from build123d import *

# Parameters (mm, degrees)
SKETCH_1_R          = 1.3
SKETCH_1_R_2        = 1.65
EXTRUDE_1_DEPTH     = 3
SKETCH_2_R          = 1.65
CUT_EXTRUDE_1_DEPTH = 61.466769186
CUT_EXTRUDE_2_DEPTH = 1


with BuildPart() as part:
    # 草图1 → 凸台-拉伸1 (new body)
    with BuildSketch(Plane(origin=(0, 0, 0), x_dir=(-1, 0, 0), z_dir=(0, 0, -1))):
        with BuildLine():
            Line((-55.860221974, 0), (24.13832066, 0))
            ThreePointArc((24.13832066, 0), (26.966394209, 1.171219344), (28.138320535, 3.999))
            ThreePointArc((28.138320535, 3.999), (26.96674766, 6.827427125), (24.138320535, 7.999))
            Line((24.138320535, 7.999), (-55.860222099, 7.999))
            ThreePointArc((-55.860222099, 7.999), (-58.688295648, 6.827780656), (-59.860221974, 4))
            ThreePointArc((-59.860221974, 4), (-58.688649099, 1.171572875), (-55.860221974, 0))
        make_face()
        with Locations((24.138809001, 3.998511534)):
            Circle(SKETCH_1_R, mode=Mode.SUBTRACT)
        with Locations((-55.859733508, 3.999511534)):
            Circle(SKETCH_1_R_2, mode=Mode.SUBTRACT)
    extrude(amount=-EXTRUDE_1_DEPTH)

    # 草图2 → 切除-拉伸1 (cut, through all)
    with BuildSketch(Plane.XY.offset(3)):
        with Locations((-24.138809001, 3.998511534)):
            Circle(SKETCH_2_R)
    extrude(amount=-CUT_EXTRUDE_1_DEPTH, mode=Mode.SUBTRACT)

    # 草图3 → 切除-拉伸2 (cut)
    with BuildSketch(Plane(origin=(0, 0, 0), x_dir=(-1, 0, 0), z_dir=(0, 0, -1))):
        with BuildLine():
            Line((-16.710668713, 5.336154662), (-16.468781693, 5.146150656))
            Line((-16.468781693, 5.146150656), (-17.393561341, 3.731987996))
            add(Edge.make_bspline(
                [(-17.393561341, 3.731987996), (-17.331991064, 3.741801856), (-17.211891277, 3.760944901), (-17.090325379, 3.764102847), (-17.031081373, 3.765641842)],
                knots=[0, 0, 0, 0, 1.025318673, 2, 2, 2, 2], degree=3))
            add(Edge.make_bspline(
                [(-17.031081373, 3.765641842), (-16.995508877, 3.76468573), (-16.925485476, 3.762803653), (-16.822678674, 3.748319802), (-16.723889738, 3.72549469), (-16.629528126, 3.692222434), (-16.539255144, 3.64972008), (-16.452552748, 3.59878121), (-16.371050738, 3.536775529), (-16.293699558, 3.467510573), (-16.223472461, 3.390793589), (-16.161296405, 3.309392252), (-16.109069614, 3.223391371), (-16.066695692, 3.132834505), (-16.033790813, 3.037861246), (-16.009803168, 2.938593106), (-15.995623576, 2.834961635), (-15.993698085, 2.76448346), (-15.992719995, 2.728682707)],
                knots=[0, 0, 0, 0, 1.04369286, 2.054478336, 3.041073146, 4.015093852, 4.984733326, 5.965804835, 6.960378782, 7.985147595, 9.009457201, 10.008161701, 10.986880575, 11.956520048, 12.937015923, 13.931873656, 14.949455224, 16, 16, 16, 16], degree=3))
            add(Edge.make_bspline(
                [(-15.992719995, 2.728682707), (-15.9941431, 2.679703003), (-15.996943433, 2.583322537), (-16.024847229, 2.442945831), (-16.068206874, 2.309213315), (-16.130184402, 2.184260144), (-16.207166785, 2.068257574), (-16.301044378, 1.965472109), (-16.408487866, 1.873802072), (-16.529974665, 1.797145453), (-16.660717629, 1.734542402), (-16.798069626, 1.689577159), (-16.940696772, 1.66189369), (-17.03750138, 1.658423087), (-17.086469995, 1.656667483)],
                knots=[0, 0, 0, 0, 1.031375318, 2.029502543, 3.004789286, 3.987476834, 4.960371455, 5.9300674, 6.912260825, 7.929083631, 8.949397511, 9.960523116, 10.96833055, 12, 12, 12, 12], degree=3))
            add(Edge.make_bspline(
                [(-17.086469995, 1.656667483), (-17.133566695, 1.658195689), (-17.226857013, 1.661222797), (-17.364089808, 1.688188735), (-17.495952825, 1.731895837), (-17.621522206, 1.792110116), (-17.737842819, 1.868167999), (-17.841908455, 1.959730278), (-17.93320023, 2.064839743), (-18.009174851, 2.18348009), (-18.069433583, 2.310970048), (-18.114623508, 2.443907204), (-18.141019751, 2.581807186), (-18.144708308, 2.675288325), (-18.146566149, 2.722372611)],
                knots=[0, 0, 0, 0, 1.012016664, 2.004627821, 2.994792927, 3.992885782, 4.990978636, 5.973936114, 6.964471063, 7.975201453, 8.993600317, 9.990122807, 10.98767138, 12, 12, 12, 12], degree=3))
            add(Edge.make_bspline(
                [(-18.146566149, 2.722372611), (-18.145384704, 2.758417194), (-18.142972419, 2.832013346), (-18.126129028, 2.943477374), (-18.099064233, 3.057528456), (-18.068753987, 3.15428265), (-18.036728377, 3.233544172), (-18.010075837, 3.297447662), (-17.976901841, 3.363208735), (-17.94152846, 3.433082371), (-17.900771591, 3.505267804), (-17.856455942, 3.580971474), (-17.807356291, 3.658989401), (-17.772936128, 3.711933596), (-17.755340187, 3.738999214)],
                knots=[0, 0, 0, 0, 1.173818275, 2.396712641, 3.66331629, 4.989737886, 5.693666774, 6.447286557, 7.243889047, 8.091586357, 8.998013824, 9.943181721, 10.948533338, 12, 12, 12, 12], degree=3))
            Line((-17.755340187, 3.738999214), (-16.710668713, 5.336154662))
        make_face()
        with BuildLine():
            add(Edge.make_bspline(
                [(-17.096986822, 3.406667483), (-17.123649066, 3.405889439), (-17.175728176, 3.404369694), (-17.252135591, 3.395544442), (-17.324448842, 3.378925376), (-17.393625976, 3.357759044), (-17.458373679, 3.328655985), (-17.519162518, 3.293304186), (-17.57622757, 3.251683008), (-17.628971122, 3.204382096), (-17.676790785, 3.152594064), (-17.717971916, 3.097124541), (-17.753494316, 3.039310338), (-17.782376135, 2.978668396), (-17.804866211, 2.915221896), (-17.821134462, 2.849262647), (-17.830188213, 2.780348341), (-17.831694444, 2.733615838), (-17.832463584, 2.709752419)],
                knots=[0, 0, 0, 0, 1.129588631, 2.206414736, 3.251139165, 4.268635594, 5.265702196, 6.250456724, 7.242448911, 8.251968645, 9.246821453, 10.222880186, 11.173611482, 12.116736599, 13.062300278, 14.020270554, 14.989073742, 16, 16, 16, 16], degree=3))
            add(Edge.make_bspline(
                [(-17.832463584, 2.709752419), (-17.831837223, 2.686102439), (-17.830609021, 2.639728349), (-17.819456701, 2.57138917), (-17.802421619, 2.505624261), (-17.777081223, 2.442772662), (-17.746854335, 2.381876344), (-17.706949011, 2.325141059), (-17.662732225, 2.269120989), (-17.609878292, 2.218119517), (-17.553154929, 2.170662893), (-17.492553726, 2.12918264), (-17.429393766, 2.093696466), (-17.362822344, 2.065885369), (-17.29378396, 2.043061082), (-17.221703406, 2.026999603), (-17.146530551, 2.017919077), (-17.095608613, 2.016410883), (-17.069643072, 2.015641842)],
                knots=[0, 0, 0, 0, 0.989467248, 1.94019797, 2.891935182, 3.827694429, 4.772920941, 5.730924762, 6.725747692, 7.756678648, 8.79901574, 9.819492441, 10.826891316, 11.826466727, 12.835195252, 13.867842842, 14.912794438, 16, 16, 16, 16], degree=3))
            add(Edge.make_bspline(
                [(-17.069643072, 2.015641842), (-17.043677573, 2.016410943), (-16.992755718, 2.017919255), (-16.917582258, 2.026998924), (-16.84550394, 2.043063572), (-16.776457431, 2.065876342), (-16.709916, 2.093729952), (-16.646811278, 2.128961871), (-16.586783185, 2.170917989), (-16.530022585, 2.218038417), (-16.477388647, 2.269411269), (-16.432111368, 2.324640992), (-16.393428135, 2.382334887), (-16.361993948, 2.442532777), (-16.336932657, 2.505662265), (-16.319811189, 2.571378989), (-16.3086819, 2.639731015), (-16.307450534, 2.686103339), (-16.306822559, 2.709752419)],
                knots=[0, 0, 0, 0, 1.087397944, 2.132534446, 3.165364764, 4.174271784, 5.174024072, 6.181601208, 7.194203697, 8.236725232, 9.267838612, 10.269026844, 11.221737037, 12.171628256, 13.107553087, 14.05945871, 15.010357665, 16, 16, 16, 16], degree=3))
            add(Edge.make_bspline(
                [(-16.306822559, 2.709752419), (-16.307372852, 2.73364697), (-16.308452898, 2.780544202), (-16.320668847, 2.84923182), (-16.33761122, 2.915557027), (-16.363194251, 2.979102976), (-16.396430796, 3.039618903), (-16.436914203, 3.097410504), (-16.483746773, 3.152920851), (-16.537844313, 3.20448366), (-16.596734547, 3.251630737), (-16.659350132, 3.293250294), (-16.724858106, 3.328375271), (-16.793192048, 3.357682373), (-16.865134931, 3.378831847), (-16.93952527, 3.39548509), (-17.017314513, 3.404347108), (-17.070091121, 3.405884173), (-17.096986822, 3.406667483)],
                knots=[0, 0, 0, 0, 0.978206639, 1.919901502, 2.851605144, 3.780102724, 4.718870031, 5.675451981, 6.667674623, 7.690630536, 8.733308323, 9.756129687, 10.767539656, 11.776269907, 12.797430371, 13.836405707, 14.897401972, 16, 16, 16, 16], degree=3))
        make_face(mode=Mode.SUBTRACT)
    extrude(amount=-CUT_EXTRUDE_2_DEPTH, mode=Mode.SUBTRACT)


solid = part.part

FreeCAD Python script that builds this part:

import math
import FreeCAD as App
import Part
import Sketcher
from FreeCAD import Vector

doc = App.newDocument("Part")
params = doc.addObject("Spreadsheet::Sheet", "Params")
for row, (alias, value) in enumerate([
    ("sketch1_radius", "4 mm"),
    ("sketch1_diameter", "2.6 mm"),
    ("sketch1_diameter2", "3.3 mm"),
    ("pad1_length", "3 mm"),
    ("sketch2_diameter", "3.3 mm"),
    ("pocket2_length", "1 mm"),
], start=1):
    params.set(f"A{row}", alias)
    params.set(f"B{row}", "=" + value)
    params.setAlias(f"B{row}", alias)

body = doc.addObject("PartDesign::Body", "Body")

# Sketch on XY plane
sketch1 = doc.addObject("Sketcher::SketchObject", "Sketch")
body.addObject(sketch1)
sketch1.AttachmentSupport = (doc.XY_Plane, [""])
sketch1.MapMode = "FlatFace"
sketch1.addGeometry([
    Part.LineSegment(Vector(55.860222, 0, 0), Vector(-24.138321, 0, 0)),  # 0
    Part.ArcOfCircle(Part.Circle(Vector(-24.138321, 4, 0), Vector(0, 0, 1), 4), math.radians(-179.985676), math.radians(-90)),  # 1
    Part.ArcOfCircle(Part.Circle(Vector(-24.138321, 3.999, 0), Vector(0, 0, 1), 4), math.radians(90), math.radians(180)),  # 2
    Part.LineSegment(Vector(-24.138321, 7.999, 0), Vector(55.860222, 7.999, 0)),  # 3
    Part.ArcOfCircle(Part.Circle(Vector(55.860222, 3.999, 0), Vector(0, 0, 1), 4), math.radians(0.014324), math.radians(90)),  # 4
    Part.ArcOfCircle(Part.Circle(Vector(55.860222, 4, 0), Vector(0, 0, 1), 4), math.radians(-90), math.radians(0)),  # 5
    Part.Circle(Vector(-24.138809, 3.998512, 0), Vector(0, 0, 1), 1.3),  # 6
    Part.Circle(Vector(55.859734, 3.999512, 0), Vector(0, 0, 1), 1.65),  # 7
], False)
sketch1.addConstraint([
    Sketcher.Constraint("Tangent", 0, 2, 1, 2),
    Sketcher.Constraint("Coincident", 1, 1, 2, 2),
    Sketcher.Constraint("Tangent", 2, 1, 3, 1),
    Sketcher.Constraint("Tangent", 3, 2, 4, 2),
    Sketcher.Constraint("Coincident", 4, 1, 5, 2),
    Sketcher.Constraint("Tangent", 5, 1, 0, 1),
    Sketcher.Constraint("Horizontal", 0),
    Sketcher.Constraint("Horizontal", 3),
    Sketcher.Constraint("Equal", 1, 2),
    Sketcher.Constraint("Equal", 2, 4),
    Sketcher.Constraint("Equal", 4, 5),
    Sketcher.Constraint("PointOnObject", 0, 2, -1),
    Sketcher.Constraint("Horizontal", 4, 3, 1, 1),
    Sketcher.Constraint("Horizontal", 5, 3, 4, 1),
    Sketcher.Constraint("Radius", 1, 4.0),
    Sketcher.Constraint("Diameter", 6, 2.6),
    Sketcher.Constraint("Diameter", 7, 3.3),
    Sketcher.Constraint("DistanceY", -1, 1, 2, 3, 3.999),
    Sketcher.Constraint("DistanceY", 6, 3, 7, 3, 0.001),
    Sketcher.Constraint("DistanceX", 0, 2, 0, 1, 79.998543),
    Sketcher.Constraint("DistanceX", 1, 3, -1, 1, 24.138321),
    Sketcher.Constraint("DistanceX", 6, 3, -1, 1, 24.138809),
    Sketcher.Constraint("DistanceY", -1, 1, 6, 3, 3.998512),
    Sketcher.Constraint("DistanceX", 7, 3, 5, 3, 0.000488),
])
sketch1.setExpression("Constraints[14]", "Params.sketch1_radius")
sketch1.setExpression("Constraints[15]", "Params.sketch1_diameter")
sketch1.setExpression("Constraints[16]", "Params.sketch1_diameter2")
pad1 = doc.addObject("PartDesign::Pad", "Pad")
body.addObject(pad1)
pad1.Profile = sketch1
pad1.setExpression("Length", "Params.pad1_length")

# Sketch on XY plane
sketch2 = doc.addObject("Sketcher::SketchObject", "Sketch001")
body.addObject(sketch2)
sketch2.AttachmentSupport = (doc.XY_Plane, [""])
sketch2.MapMode = "FlatFace"
sketch2.AttachmentOffset = App.Placement(Vector(0, 0, 3), App.Rotation())
sketch2.addGeometry(Part.Circle(Vector(-24.138809, 3.998512, 0), Vector(0, 0, 1), 1.65), False)
sketch2.addConstraint([
    Sketcher.Constraint("Diameter", 0, 3.3),
    Sketcher.Constraint("DistanceX", 0, 3, -1, 1, 24.138809),
    Sketcher.Constraint("DistanceY", -1, 1, 0, 3, 3.998512),
])
sketch2.setExpression("Constraints[0]", "Params.sketch2_diameter")
pocket1 = doc.addObject("PartDesign::Pocket", "Pocket")
body.addObject(pocket1)
pocket1.Profile = sketch2
pocket1.Type = "ThroughAll"

# Sketch on XY plane
sketch3 = doc.addObject("Sketcher::SketchObject", "Sketch002")
body.addObject(sketch3)
sketch3.AttachmentSupport = (doc.XY_Plane, [""])
sketch3.MapMode = "FlatFace"
sketch3.addGeometry([
    Part.LineSegment(Vector(16.468782, 5.146151, 0), Vector(16.710669, 5.336155, 0)),  # 0
    Part.LineSegment(Vector(16.710669, 5.336155, 0), Vector(17.75534, 3.738999, 0)),  # 1
    Part.BSplineCurve([Vector(18.146566, 2.722373, 0), Vector(18.145385, 2.758417, 0), Vector(18.142972, 2.832013, 0), Vector(18.126129, 2.943477, 0), Vector(18.099064, 3.057528, 0), Vector(18.068754, 3.154283, 0), Vector(18.036728, 3.233544, 0), Vector(18.010076, 3.297448, 0), Vector(17.976902, 3.363209, 0), Vector(17.941528, 3.433082, 0), Vector(17.900772, 3.505268, 0), Vector(17.856456, 3.580971, 0), Vector(17.807356, 3.658989, 0), Vector(17.772936, 3.711934, 0), Vector(17.75534, 3.738999, 0)], [4, 1, 1, 1, 1, 1, 1, 1, 1, 1, 1, 1, 4], [0, 1.173818275, 2.396712641, 3.66331629, 4.989737886, 5.693666774, 6.447286557, 7.243889047, 8.091586357, 8.998013824, 9.943181721, 10.948533338, 12], False, 3, [1, 1, 1, 1, 1, 1, 1, 1, 1, 1, 1, 1, 1, 1, 1], False),  # 2
    Part.BSplineCurve([Vector(17.08647, 1.656667, 0), Vector(17.133567, 1.658196, 0), Vector(17.226857, 1.661223, 0), Vector(17.36409, 1.688189, 0), Vector(17.495953, 1.731896, 0), Vector(17.621522, 1.79211, 0), Vector(17.737843, 1.868168, 0), Vector(17.841908, 1.95973, 0), Vector(17.9332, 2.06484, 0), Vector(18.009175, 2.18348, 0), Vector(18.069434, 2.31097, 0), Vector(18.114624, 2.443907, 0), Vector(18.14102, 2.581807, 0), Vector(18.144708, 2.675288, 0), Vector(18.146566, 2.722373, 0)], [4, 1, 1, 1, 1, 1, 1, 1, 1, 1, 1, 1, 4], [0, 1.012016664, 2.004627821, 2.994792927, 3.992885782, 4.990978636, 5.973936114, 6.964471063, 7.975201453, 8.993600317, 9.990122807, 10.98767138, 12], False, 3, [1, 1, 1, 1, 1, 1, 1, 1, 1, 1, 1, 1, 1, 1, 1], False),  # 3
    Part.BSplineCurve([Vector(15.99272, 2.728683, 0), Vector(15.994143, 2.679703, 0), Vector(15.996943, 2.583323, 0), Vector(16.024847, 2.442946, 0), Vector(16.068207, 2.309213, 0), Vector(16.130184, 2.18426, 0), Vector(16.207167, 2.068258, 0), Vector(16.301044, 1.965472, 0), Vector(16.408488, 1.873802, 0), Vector(16.529975, 1.797145, 0), Vector(16.660718, 1.734542, 0), Vector(16.79807, 1.689577, 0), Vector(16.940697, 1.661894, 0), Vector(17.037501, 1.658423, 0), Vector(17.08647, 1.656667, 0)], [4, 1, 1, 1, 1, 1, 1, 1, 1, 1, 1, 1, 4], [0, 1.031375318, 2.029502543, 3.004789286, 3.987476834, 4.960371455, 5.9300674, 6.912260825, 7.929083631, 8.949397511, 9.960523116, 10.96833055, 12], False, 3, [1, 1, 1, 1, 1, 1, 1, 1, 1, 1, 1, 1, 1, 1, 1], False),  # 4
    Part.BSplineCurve([Vector(17.031081, 3.765642, 0), Vector(16.995509, 3.764686, 0), Vector(16.925485, 3.762804, 0), Vector(16.822679, 3.74832, 0), Vector(16.72389, 3.725495, 0), Vector(16.629528, 3.692222, 0), Vector(16.539255, 3.64972, 0), Vector(16.452553, 3.598781, 0), Vector(16.371051, 3.536776, 0), Vector(16.2937, 3.467511, 0), Vector(16.223472, 3.390794, 0), Vector(16.161296, 3.309392, 0), Vector(16.10907, 3.223391, 0), Vector(16.066696, 3.132835, 0), Vector(16.033791, 3.037861, 0), Vector(16.009803, 2.938593, 0), Vector(15.995624, 2.834962, 0), Vector(15.993698, 2.764483, 0), Vector(15.99272, 2.728683, 0)], [4, 1, 1, 1, 1, 1, 1, 1, 1, 1, 1, 1, 1, 1, 1, 1, 4], [0, 1.04369286, 2.054478336, 3.041073146, 4.015093852, 4.984733326, 5.965804835, 6.960378782, 7.985147595, 9.009457201, 10.008161701, 10.986880575, 11.956520048, 12.937015923, 13.931873656, 14.949455224, 16], False, 3, [1, 1, 1, 1, 1, 1, 1, 1, 1, 1, 1, 1, 1, 1, 1, 1, 1, 1, 1], False),  # 5
    Part.BSplineCurve([Vector(17.393561, 3.731988, 0), Vector(17.331991, 3.741802, 0), Vector(17.211891, 3.760945, 0), Vector(17.090325, 3.764103, 0), Vector(17.031081, 3.765642, 0)], [4, 1, 4], [0, 1.025318673, 2], False, 3, [1, 1, 1, 1, 1], False),  # 6
    Part.LineSegment(Vector(17.393561, 3.731988, 0), Vector(16.468782, 5.146151, 0)),  # 7
    Part.BSplineCurve([Vector(16.306823, 2.709752, 0), Vector(16.307373, 2.733647, 0), Vector(16.308453, 2.780544, 0), Vector(16.320669, 2.849232, 0), Vector(16.337611, 2.915557, 0), Vector(16.363194, 2.979103, 0), Vector(16.396431, 3.039619, 0), Vector(16.436914, 3.097411, 0), Vector(16.483747, 3.152921, 0), Vector(16.537844, 3.204484, 0), Vector(16.596735, 3.251631, 0), Vector(16.65935, 3.29325, 0), Vector(16.724858, 3.328375, 0), Vector(16.793192, 3.357682, 0), Vector(16.865135, 3.378832, 0), Vector(16.939525, 3.395485, 0), Vector(17.017315, 3.404347, 0), Vector(17.070091, 3.405884, 0), Vector(17.096987, 3.406667, 0)], [4, 1, 1, 1, 1, 1, 1, 1, 1, 1, 1, 1, 1, 1, 1, 1, 4], [0, 0.978206639, 1.919901502, 2.851605144, 3.780102724, 4.718870031, 5.675451981, 6.667674623, 7.690630536, 8.733308323, 9.756129687, 10.767539656, 11.776269907, 12.797430371, 13.836405707, 14.897401972, 16], False, 3, [1, 1, 1, 1, 1, 1, 1, 1, 1, 1, 1, 1, 1, 1, 1, 1, 1, 1, 1], False),  # 8
    Part.BSplineCurve([Vector(17.069643, 2.015642, 0), Vector(17.043678, 2.016411, 0), Vector(16.992756, 2.017919, 0), Vector(16.917582, 2.026999, 0), Vector(16.845504, 2.043064, 0), Vector(16.776457, 2.065876, 0), Vector(16.709916, 2.09373, 0), Vector(16.646811, 2.128962, 0), Vector(16.586783, 2.170918, 0), Vector(16.530023, 2.218038, 0), Vector(16.477389, 2.269411, 0), Vector(16.432111, 2.324641, 0), Vector(16.393428, 2.382335, 0), Vector(16.361994, 2.442533, 0), Vector(16.336933, 2.505662, 0), Vector(16.319811, 2.571379, 0), Vector(16.308682, 2.639731, 0), Vector(16.307451, 2.686103, 0), Vector(16.306823, 2.709752, 0)], [4, 1, 1, 1, 1, 1, 1, 1, 1, 1, 1, 1, 1, 1, 1, 1, 4], [0, 1.087397944, 2.132534446, 3.165364764, 4.174271784, 5.174024072, 6.181601208, 7.194203697, 8.236725232, 9.267838612, 10.269026844, 11.221737037, 12.171628256, 13.107553087, 14.05945871, 15.010357665, 16], False, 3, [1, 1, 1, 1, 1, 1, 1, 1, 1, 1, 1, 1, 1, 1, 1, 1, 1, 1, 1], False),  # 9
    Part.BSplineCurve([Vector(17.832464, 2.709752, 0), Vector(17.831837, 2.686102, 0), Vector(17.830609, 2.639728, 0), Vector(17.819457, 2.571389, 0), Vector(17.802422, 2.505624, 0), Vector(17.777081, 2.442773, 0), Vector(17.746854, 2.381876, 0), Vector(17.706949, 2.325141, 0), Vector(17.662732, 2.269121, 0), Vector(17.609878, 2.21812, 0), Vector(17.553155, 2.170663, 0), Vector(17.492554, 2.129183, 0), Vector(17.429394, 2.093696, 0), Vector(17.362822, 2.065885, 0), Vector(17.293784, 2.043061, 0), Vector(17.221703, 2.027, 0), Vector(17.146531, 2.017919, 0), Vector(17.095609, 2.016411, 0), Vector(17.069643, 2.015642, 0)], [4, 1, 1, 1, 1, 1, 1, 1, 1, 1, 1, 1, 1, 1, 1, 1, 4], [0, 0.989467248, 1.94019797, 2.891935182, 3.827694429, 4.772920941, 5.730924762, 6.725747692, 7.756678648, 8.79901574, 9.819492441, 10.826891316, 11.826466727, 12.835195252, 13.867842842, 14.912794438, 16], False, 3, [1, 1, 1, 1, 1, 1, 1, 1, 1, 1, 1, 1, 1, 1, 1, 1, 1, 1, 1], False),  # 10
    Part.BSplineCurve([Vector(17.096987, 3.406667, 0), Vector(17.123649, 3.405889, 0), Vector(17.175728, 3.40437, 0), Vector(17.252136, 3.395544, 0), Vector(17.324449, 3.378925, 0), Vector(17.393626, 3.357759, 0), Vector(17.458374, 3.328656, 0), Vector(17.519163, 3.293304, 0), Vector(17.576228, 3.251683, 0), Vector(17.628971, 3.204382, 0), Vector(17.676791, 3.152594, 0), Vector(17.717972, 3.097125, 0), Vector(17.753494, 3.03931, 0), Vector(17.782376, 2.978668, 0), Vector(17.804866, 2.915222, 0), Vector(17.821134, 2.849263, 0), Vector(17.830188, 2.780348, 0), Vector(17.831694, 2.733616, 0), Vector(17.832464, 2.709752, 0)], [4, 1, 1, 1, 1, 1, 1, 1, 1, 1, 1, 1, 1, 1, 1, 1, 4], [0, 1.129588631, 2.206414736, 3.251139165, 4.268635594, 5.265702196, 6.250456724, 7.242448911, 8.251968645, 9.246821453, 10.222880186, 11.173611482, 12.116736599, 13.062300278, 14.020270554, 14.989073742, 16], False, 3, [1, 1, 1, 1, 1, 1, 1, 1, 1, 1, 1, 1, 1, 1, 1, 1, 1, 1, 1], False),  # 11
], False)
sketch3.addConstraint([
    Sketcher.Constraint("Block", 2),
    Sketcher.Constraint("Block", 3),
    Sketcher.Constraint("Block", 4),
    Sketcher.Constraint("Block", 5),
    Sketcher.Constraint("Block", 6),
    Sketcher.Constraint("Block", 8),
    Sketcher.Constraint("Block", 9),
    Sketcher.Constraint("Block", 10),
    Sketcher.Constraint("Block", 11),
    Sketcher.Constraint("Coincident", 0, 2, 1, 1),
    Sketcher.Constraint("Coincident", 1, 2, 2, 2),
    Sketcher.Constraint("Coincident", 6, 1, 7, 1),
    Sketcher.Constraint("Coincident", 7, 2, 0, 1),
    Sketcher.Constraint("Distance", 0, 0.307589),
    Sketcher.Constraint("DistanceX", -1, 1, 0, 2, 16.710669),
    Sketcher.Constraint("DistanceX", -1, 1, 7, 2, 16.468782),
    Sketcher.Constraint("DistanceY", -1, 1, 7, 2, 5.146151),
])
pocket2 = doc.addObject("PartDesign::Pocket", "Pocket001")
body.addObject(pocket2)
pocket2.Profile = sketch3
pocket2.setExpression("Length", "Params.pocket2_length")
pocket2.Reversed = True

doc.recompute()
